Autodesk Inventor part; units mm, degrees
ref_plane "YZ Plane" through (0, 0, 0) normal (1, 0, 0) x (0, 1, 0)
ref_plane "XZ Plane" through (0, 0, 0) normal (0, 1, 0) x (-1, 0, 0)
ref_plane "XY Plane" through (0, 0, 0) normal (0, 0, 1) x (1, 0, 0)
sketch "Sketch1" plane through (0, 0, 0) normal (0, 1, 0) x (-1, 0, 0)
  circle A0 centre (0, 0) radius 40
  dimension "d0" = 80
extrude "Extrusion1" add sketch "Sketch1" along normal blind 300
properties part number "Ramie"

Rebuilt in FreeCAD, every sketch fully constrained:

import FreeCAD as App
import Part
import Sketcher
from FreeCAD import Vector

doc = App.newDocument("Part")
body = doc.addObject("PartDesign::Body", "Body")

# Sketch on XZ plane
sketch1 = doc.addObject("Sketcher::SketchObject", "Sketch")
body.addObject(sketch1)
sketch1.AttachmentSupport = (doc.XZ_Plane, [""])
sketch1.MapMode = "FlatFace"
sketch1.addGeometry(Part.Circle(Vector(0, 0, 0), Vector(0, 0, 1), 40), False)
sketch1.addConstraint(Sketcher.Constraint("Coincident", 0, 3, -1, 1))
sketch1.addConstraint(Sketcher.Constraint("Diameter", 0, 80.0))
pad1 = doc.addObject("PartDesign::Pad", "Pad")
body.addObject(pad1)
pad1.Profile = sketch1
pad1.Length = 300
pad1.Reversed = True

doc.recompute()
